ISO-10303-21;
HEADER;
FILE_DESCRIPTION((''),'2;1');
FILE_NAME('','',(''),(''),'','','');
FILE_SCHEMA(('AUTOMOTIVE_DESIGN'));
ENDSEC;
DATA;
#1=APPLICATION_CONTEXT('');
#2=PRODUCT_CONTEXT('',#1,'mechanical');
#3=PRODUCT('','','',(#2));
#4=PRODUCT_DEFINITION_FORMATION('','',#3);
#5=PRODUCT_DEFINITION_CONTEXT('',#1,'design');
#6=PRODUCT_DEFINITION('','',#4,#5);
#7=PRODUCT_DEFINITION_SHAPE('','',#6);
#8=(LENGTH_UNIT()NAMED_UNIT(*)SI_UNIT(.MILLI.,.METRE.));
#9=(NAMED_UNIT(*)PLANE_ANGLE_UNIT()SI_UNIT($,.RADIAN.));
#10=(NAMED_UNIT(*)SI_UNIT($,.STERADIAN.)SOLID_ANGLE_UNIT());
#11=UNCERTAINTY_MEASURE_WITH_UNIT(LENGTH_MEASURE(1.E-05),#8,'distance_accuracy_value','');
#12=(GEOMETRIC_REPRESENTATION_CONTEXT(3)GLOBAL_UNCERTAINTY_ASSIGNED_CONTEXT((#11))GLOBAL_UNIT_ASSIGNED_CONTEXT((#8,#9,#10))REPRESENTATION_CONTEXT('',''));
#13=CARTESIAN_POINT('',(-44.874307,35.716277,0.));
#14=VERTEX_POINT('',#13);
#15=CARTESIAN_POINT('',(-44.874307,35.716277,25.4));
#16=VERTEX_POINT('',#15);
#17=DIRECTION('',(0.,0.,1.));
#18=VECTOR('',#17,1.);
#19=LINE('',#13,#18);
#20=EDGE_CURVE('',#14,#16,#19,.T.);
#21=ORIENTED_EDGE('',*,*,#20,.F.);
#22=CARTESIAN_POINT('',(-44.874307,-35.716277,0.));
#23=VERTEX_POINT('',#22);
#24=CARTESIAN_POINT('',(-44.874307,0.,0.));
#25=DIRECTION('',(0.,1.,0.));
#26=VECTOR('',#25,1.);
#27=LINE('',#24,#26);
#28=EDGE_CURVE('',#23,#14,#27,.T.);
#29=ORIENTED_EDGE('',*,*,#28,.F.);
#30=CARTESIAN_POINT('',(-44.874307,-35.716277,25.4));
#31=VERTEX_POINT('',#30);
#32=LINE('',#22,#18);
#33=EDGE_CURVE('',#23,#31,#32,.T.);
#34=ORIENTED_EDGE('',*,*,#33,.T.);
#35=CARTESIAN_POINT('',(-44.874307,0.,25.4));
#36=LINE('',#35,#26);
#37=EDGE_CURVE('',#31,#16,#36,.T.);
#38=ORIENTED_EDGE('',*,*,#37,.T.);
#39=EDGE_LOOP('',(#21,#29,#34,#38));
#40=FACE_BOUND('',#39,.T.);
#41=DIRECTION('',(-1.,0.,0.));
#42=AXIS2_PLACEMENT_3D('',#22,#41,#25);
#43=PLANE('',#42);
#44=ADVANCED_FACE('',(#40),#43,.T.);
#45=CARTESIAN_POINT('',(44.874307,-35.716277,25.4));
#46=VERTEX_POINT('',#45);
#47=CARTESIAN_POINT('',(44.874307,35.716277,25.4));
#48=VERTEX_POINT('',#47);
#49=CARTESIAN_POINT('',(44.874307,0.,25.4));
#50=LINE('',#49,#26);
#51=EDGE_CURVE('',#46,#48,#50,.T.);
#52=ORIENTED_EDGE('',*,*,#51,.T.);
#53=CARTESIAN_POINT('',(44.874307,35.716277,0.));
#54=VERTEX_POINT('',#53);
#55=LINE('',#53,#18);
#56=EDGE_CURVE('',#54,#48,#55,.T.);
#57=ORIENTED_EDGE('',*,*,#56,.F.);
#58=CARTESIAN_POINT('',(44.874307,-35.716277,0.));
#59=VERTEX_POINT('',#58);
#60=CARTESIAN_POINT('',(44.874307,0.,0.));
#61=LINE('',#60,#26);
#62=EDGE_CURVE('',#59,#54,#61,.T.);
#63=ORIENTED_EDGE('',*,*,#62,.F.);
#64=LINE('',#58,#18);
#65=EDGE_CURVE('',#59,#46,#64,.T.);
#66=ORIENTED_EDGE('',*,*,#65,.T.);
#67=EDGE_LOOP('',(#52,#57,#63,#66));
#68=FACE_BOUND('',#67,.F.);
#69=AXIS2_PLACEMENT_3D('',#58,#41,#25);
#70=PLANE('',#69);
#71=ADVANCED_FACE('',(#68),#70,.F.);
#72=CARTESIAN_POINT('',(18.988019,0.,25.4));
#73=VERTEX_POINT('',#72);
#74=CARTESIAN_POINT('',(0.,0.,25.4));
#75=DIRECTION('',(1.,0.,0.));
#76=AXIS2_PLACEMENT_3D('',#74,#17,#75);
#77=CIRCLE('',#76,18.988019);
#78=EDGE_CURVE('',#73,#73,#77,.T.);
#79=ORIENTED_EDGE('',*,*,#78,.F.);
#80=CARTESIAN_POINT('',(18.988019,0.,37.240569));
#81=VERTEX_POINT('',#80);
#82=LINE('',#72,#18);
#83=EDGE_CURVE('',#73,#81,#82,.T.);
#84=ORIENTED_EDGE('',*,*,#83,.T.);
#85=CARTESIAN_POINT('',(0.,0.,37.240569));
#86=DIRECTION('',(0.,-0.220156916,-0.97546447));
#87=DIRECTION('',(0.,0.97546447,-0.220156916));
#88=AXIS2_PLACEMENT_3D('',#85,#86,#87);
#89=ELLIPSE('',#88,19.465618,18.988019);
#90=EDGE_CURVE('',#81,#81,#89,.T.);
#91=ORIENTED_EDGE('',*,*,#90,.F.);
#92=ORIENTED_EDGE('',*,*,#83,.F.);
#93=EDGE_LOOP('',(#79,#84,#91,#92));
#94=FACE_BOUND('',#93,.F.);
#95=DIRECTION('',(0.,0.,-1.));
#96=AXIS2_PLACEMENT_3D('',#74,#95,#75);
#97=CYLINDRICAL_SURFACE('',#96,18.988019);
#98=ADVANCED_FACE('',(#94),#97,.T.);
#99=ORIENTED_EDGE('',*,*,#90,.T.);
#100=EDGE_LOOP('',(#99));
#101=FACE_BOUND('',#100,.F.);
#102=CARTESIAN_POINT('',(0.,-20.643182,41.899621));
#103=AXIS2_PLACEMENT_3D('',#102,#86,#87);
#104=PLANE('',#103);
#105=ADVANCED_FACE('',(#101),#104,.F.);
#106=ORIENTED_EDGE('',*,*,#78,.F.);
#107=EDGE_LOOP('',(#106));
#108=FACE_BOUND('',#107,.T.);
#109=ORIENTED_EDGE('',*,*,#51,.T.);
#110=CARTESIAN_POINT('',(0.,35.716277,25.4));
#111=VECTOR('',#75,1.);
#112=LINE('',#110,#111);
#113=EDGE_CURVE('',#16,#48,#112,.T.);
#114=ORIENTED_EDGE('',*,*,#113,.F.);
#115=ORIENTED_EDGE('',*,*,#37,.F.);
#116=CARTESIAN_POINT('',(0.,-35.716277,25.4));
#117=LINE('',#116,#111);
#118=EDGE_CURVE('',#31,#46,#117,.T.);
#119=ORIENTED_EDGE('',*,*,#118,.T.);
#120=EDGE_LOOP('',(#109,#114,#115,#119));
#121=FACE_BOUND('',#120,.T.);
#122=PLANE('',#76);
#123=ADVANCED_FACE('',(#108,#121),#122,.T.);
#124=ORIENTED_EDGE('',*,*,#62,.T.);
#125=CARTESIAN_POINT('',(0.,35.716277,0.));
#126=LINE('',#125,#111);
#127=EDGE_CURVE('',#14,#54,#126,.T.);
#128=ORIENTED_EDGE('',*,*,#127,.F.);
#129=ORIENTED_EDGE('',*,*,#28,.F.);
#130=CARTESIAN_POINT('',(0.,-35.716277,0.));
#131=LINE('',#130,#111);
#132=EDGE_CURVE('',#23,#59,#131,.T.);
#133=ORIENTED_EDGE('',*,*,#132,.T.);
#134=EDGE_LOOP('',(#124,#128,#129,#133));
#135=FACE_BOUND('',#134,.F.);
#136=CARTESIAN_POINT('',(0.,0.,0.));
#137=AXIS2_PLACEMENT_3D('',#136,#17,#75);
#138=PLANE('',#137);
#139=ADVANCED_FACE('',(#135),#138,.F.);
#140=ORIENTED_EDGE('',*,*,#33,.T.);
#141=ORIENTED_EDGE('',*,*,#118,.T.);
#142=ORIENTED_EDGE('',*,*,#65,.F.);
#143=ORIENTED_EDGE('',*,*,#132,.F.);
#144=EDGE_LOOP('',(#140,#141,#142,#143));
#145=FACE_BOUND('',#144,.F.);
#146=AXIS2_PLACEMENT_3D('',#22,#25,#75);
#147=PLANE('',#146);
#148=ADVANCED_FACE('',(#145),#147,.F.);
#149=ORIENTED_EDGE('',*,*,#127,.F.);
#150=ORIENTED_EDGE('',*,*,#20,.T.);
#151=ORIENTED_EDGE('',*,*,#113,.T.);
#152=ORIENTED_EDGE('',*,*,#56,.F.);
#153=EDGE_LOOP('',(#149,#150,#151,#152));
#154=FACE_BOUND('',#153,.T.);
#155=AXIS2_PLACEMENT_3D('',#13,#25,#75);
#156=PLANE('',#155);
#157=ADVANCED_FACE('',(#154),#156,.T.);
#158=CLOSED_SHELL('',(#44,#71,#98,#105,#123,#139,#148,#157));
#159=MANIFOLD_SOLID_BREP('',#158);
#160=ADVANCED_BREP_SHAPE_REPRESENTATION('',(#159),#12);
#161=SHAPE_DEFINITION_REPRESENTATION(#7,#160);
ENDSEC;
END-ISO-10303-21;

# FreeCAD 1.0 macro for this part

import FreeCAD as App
import Part
import Sketcher
Q = App.Units.Quantity


def add_polygon(sketch, points):
    """Adds a closed chain of lines whose ends are joined by coincident constraints."""
    first, n = sketch.GeometryCount, len(points)
    for a, b in zip(points, points[1:] + points[:1]):
        sketch.addGeometry(Part.LineSegment(App.Vector(*a, 0), App.Vector(*b, 0)), False)
    for i in range(n):
        sketch.addConstraint(Sketcher.Constraint("Coincident", first + i, 2, first + (i + 1) % n, 1))

doc = App.newDocument("Part")
body = doc.addObject("PartDesign::Body", "Body")

sketch1 = body.newObject("Sketcher::SketchObject", "Sketch")
sketch1.AttachmentSupport = (doc.getObject("XY_Plane"), [""])
sketch1.MapMode = "FlatFace"
add_polygon(sketch1, [(-44.874307, 35.716277), (-44.874307, -35.716277), (44.874307, -35.716277), (44.874307, 35.716277)])
sketch1.addConstraint(Sketcher.Constraint("Vertical", 0))
sketch1.addConstraint(Sketcher.Constraint("Horizontal", 1))
sketch1.addConstraint(Sketcher.Constraint("Vertical", 2))
sketch1.addConstraint(Sketcher.Constraint("Horizontal", 3))
sketch1.addConstraint(Sketcher.Constraint("Symmetric", 0, 2, 2, 2, -1, 1))
sketch1.addConstraint(Sketcher.Constraint("DistanceX", 1, 1, 1, 2, 89.748614))
sketch1.addConstraint(Sketcher.Constraint("DistanceY", 0, 2, 0, 1, 71.432554))
pad1 = body.newObject("PartDesign::Pad", "Pad")
pad1.Profile = sketch1
pad1.Length = Q("1 in")

sketch2 = body.newObject("Sketcher::SketchObject", "Sketch001")
sketch2.AttachmentSupport = (doc.getObject("XY_Plane"), [""])
sketch2.MapMode = "FlatFace"
sketch2.AttachmentOffset = App.Placement(App.Vector(0, 0, 1 * 25.4), App.Rotation())
sketch2.addGeometry(Part.Circle(App.Vector(0, 0, 0), App.Vector(0, 0, 1), 18.988019), False)
sketch2.addConstraint(Sketcher.Constraint("Coincident", 0, 3, -1, 1))
sketch2.addConstraint(Sketcher.Constraint("Diameter", 0, 37.976038))
pad2 = body.newObject("PartDesign::Pad", "Pad001")
pad2.Profile = sketch2
pad2.Length = Q("1 in")

sketch3 = body.newObject("Sketcher::SketchObject", "Sketch002")
sketch3.AttachmentSupport = (doc.getObject("YZ_Plane"), [""])
sketch3.MapMode = "FlatFace"
add_polygon(sketch3, [(-20.643182, 53.957682), (-20.643182, 41.899621), (23.315316, 31.978432), (23.315316, 53.957682)])
sketch3.addConstraint(Sketcher.Constraint("Vertical", 0))
sketch3.addConstraint(Sketcher.Constraint("Vertical", 2))
sketch3.addConstraint(Sketcher.Constraint("Horizontal", 3))
sketch3.addConstraint(Sketcher.Constraint("DistanceY", 0, 2, 0, 1, 12.058061))
sketch3.addConstraint(Sketcher.Constraint("DistanceY", 2, 1, 2, 2, 21.97925))
sketch3.addConstraint(Sketcher.Constraint("Distance", 1, 45.064171))
sketch3.addConstraint(Sketcher.Constraint("DistanceX", 0, 2, -1, 1, 20.643182))
sketch3.addConstraint(Sketcher.Constraint("DistanceY", -1, 1, 0, 2, 41.899621))
pocket1 = body.newObject("PartDesign::Pocket", "Pocket")
pocket1.Profile = sketch3
pocket1.Length = Q("50 in")
pocket1.Midplane = True

doc.recompute()
